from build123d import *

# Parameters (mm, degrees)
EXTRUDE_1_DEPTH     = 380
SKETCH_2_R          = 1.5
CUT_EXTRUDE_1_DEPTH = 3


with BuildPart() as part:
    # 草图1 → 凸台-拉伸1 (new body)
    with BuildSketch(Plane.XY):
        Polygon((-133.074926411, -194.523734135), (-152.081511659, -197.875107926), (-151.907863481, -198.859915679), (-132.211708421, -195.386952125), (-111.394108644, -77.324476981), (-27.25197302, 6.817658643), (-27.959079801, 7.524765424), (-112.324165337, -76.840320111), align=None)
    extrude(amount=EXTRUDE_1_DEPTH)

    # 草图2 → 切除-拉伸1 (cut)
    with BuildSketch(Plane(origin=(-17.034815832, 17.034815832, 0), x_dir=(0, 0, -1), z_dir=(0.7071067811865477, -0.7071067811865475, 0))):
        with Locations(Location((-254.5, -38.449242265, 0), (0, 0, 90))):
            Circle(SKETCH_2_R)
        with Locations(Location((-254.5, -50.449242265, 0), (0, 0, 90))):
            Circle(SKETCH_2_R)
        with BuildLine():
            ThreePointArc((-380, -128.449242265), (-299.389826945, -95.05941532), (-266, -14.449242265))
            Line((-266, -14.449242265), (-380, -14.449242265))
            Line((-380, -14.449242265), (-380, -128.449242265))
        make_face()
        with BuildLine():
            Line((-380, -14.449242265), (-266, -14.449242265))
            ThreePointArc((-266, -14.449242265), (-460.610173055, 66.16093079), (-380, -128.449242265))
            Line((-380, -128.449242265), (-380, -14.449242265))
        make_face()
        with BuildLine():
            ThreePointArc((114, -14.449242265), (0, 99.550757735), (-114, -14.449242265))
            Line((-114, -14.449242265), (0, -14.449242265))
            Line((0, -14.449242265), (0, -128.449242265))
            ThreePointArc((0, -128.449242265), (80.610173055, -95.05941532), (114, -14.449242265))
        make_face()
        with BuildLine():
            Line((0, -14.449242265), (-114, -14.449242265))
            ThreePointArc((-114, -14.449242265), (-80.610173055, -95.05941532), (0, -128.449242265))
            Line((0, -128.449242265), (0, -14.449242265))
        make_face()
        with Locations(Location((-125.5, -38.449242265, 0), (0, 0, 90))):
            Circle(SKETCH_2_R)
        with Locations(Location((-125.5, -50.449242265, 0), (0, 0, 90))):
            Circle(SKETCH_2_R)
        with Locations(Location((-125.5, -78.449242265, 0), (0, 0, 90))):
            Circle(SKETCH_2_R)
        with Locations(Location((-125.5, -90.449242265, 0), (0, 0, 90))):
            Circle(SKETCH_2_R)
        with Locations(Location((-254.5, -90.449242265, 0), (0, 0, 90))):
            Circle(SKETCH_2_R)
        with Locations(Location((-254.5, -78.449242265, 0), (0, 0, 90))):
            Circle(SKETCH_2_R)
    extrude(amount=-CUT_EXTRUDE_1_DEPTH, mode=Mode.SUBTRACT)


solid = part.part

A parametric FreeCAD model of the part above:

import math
import FreeCAD as App
import Part
import Sketcher
Q = App.Units.Quantity


def add_polygon(sketch, points):
    """Adds a closed chain of lines whose ends are joined by coincident constraints."""
    first, n = sketch.GeometryCount, len(points)
    for a, b in zip(points, points[1:] + points[:1]):
        sketch.addGeometry(Part.LineSegment(App.Vector(*a, 0), App.Vector(*b, 0)), False)
    for i in range(n):
        sketch.addConstraint(Sketcher.Constraint("Coincident", first + i, 2, first + (i + 1) % n, 1))

doc = App.newDocument("Part")
body = doc.addObject("PartDesign::Body", "Body")

sketch1 = doc.addObject("Sketcher::SketchObject", "Sketch")
body.addObject(sketch1)
sketch1.AttachmentSupport = (doc.XY_Plane, [""])
sketch1.MapMode = "FlatFace"
add_polygon(sketch1, [(-133.074926, -194.523734), (-152.081512, -197.875108), (-151.907863, -198.859916), (-132.211708, -195.386952), (-111.394109, -77.324477), (-27.251973, 6.817659), (-27.95908, 7.524765), (-112.324165, -76.84032)])
sketch1.addConstraint([
    Sketcher.Constraint("Perpendicular", 0, 1),
    Sketcher.Constraint("Perpendicular", 1, 2),
    Sketcher.Constraint("Perpendicular", 4, 5),
    Sketcher.Constraint("Perpendicular", 5, 6),
    Sketcher.Constraint("Parallel", 3, 7),
    Sketcher.Constraint("Equal", 1, 5),
    Sketcher.Constraint("Angle", 0, Q("-170 deg")),
    Sketcher.Constraint("Angle", 3, Q("80 deg")),
    Sketcher.Constraint("Angle", 4, Q("45 deg")),
    Sketcher.Constraint("Distance", 1, Q("1 mm")),
    Sketcher.Constraint("Distance", 2, Q("20 mm")),
    Sketcher.Constraint("DistanceX", 2, 2, 3, 2, Q("20.8176 mm")),
    Sketcher.Constraint("Distance", 4, Q("118.994949 mm")),
    Sketcher.Constraint("Distance", 6, Q("119.310248 mm")),
    Sketcher.Constraint("DistanceX", 0, 2, -1, 1, Q("152.081512 mm")),
    Sketcher.Constraint("DistanceY", -1, 1, 4, 2, Q("6.817659 mm")),
])
pad1 = doc.addObject("PartDesign::Pad", "Pad")
body.addObject(pad1)
pad1.Profile = sketch1
pad1.Length = 380

sketch2 = doc.addObject("Sketcher::SketchObject", "Sketch001")
body.addObject(sketch2)
sketch2.Placement = App.Placement(App.Vector(-17.034816, 17.034816, 0), App.Rotation(App.Vector(0, 0, -1), App.Vector(0.707106781, 0.707106781, 0), App.Vector(0.707106781, -0.707106781, 0), "ZXY"))
sketch2.addGeometry([
    Part.Circle(App.Vector(-254.5, -38.449242, 0), App.Vector(0, 0, 1), 1.5),
    Part.Circle(App.Vector(-254.5, -50.449242, 0), App.Vector(0, 0, 1), 1.5),
    Part.ArcOfCircle(Part.Circle(App.Vector(-380, -14.449242, 0), App.Vector(0, 0, 1), 114), math.radians(-90), math.radians(0)),
    Part.ArcOfCircle(Part.Circle(App.Vector(-380, -14.449242, 0), App.Vector(0, 0, 1), 114), math.radians(0), math.radians(270)),
    Part.ArcOfCircle(Part.Circle(App.Vector(0, -14.449242, 0), App.Vector(0, 0, 1), 114), math.radians(0), math.radians(180)),
    Part.ArcOfCircle(Part.Circle(App.Vector(0, -14.449242, 0), App.Vector(0, 0, 1), 114), math.radians(-180), math.radians(-90)),
    Part.ArcOfCircle(Part.Circle(App.Vector(0, -14.449242, 0), App.Vector(0, 0, 1), 114), math.radians(-90), math.radians(0)),
    Part.Circle(App.Vector(-125.5, -38.449242, 0), App.Vector(0, 0, 1), 1.5),
    Part.Circle(App.Vector(-125.5, -50.449242, 0), App.Vector(0, 0, 1), 1.5),
    Part.Circle(App.Vector(-125.5, -78.449242, 0), App.Vector(0, 0, 1), 1.5),
    Part.Circle(App.Vector(-125.5, -90.449242, 0), App.Vector(0, 0, 1), 1.5),
    Part.Circle(App.Vector(-254.5, -90.449242, 0), App.Vector(0, 0, 1), 1.5),
    Part.Circle(App.Vector(-254.5, -78.449242, 0), App.Vector(0, 0, 1), 1.5),
], False)
sketch2.addConstraint([
    Sketcher.Constraint("Tangent", 2, 1, 3, 2),
    Sketcher.Constraint("Coincident", 3, 1, 2, 2),
    Sketcher.Constraint("Tangent", 4, 2, 5, 1),
    Sketcher.Constraint("Tangent", 5, 2, 6, 1),
    Sketcher.Constraint("Tangent", 6, 2, 4, 1),
    Sketcher.Constraint("Equal", 0, 1),
    Sketcher.Constraint("Equal", 3, 4),
    Sketcher.Constraint("Equal", 1, 7),
    Sketcher.Constraint("Equal", 7, 8),
    Sketcher.Constraint("Equal", 8, 9),
    Sketcher.Constraint("Equal", 9, 10),
    Sketcher.Constraint("Equal", 10, 11),
    Sketcher.Constraint("Equal", 11, 12),
    Sketcher.Constraint("Symmetric", 4, 2, 6, 2, -2),
    Sketcher.Constraint("PointOnObject", 5, 2, -2),
    Sketcher.Constraint("Horizontal", 3, 3, 4, 3),
    Sketcher.Constraint("Horizontal", 0, 3, 7, 3),
    Sketcher.Constraint("Horizontal", 1, 3, 8, 3),
    Sketcher.Constraint("Horizontal", 10, 3, 11, 3),
    Sketcher.Constraint("Horizontal", 9, 3, 12, 3),
    Sketcher.Constraint("Horizontal", 6, 3, 3, 1),
    Sketcher.Constraint("Horizontal", 3, 1, 4, 2),
    Sketcher.Constraint("Vertical", 0, 3, 1, 3),
    Sketcher.Constraint("Vertical", 7, 3, 8, 3),
    Sketcher.Constraint("Vertical", 8, 3, 9, 3),
    Sketcher.Constraint("Vertical", 9, 3, 10, 3),
    Sketcher.Constraint("Vertical", 1, 3, 11, 3),
    Sketcher.Constraint("Vertical", 11, 3, 12, 3),
    Sketcher.Constraint("Vertical", 3, 3, 2, 1),
    Sketcher.Constraint("Diameter", 0, Q("3 mm")),
    Sketcher.Constraint("Radius", 2, Q("114 mm")),
    Sketcher.Constraint("DistanceX", 2, 3, -1, 1, Q("380 mm")),
    Sketcher.Constraint("DistanceY", 1, 3, 0, 3, Q("12 mm")),
    Sketcher.Constraint("DistanceY", 0, 3, 2, 3, Q("24 mm")),
    Sketcher.Constraint("DistanceX", 0, 3, 7, 3, Q("129 mm")),
    Sketcher.Constraint("DistanceY", 9, 3, 8, 3, Q("28 mm")),
    Sketcher.Constraint("DistanceY", 10, 3, 9, 3, Q("12 mm")),
    Sketcher.Constraint("DistanceX", 0, 3, -1, 1, Q("254.5 mm")),
    Sketcher.Constraint("DistanceY", 0, 3, -1, 1, Q("38.449242 mm")),
])
pocket1 = doc.addObject("PartDesign::Pocket", "Pocket")
body.addObject(pocket1)
pocket1.Profile = sketch2
pocket1.Length = 3

doc.recompute()
